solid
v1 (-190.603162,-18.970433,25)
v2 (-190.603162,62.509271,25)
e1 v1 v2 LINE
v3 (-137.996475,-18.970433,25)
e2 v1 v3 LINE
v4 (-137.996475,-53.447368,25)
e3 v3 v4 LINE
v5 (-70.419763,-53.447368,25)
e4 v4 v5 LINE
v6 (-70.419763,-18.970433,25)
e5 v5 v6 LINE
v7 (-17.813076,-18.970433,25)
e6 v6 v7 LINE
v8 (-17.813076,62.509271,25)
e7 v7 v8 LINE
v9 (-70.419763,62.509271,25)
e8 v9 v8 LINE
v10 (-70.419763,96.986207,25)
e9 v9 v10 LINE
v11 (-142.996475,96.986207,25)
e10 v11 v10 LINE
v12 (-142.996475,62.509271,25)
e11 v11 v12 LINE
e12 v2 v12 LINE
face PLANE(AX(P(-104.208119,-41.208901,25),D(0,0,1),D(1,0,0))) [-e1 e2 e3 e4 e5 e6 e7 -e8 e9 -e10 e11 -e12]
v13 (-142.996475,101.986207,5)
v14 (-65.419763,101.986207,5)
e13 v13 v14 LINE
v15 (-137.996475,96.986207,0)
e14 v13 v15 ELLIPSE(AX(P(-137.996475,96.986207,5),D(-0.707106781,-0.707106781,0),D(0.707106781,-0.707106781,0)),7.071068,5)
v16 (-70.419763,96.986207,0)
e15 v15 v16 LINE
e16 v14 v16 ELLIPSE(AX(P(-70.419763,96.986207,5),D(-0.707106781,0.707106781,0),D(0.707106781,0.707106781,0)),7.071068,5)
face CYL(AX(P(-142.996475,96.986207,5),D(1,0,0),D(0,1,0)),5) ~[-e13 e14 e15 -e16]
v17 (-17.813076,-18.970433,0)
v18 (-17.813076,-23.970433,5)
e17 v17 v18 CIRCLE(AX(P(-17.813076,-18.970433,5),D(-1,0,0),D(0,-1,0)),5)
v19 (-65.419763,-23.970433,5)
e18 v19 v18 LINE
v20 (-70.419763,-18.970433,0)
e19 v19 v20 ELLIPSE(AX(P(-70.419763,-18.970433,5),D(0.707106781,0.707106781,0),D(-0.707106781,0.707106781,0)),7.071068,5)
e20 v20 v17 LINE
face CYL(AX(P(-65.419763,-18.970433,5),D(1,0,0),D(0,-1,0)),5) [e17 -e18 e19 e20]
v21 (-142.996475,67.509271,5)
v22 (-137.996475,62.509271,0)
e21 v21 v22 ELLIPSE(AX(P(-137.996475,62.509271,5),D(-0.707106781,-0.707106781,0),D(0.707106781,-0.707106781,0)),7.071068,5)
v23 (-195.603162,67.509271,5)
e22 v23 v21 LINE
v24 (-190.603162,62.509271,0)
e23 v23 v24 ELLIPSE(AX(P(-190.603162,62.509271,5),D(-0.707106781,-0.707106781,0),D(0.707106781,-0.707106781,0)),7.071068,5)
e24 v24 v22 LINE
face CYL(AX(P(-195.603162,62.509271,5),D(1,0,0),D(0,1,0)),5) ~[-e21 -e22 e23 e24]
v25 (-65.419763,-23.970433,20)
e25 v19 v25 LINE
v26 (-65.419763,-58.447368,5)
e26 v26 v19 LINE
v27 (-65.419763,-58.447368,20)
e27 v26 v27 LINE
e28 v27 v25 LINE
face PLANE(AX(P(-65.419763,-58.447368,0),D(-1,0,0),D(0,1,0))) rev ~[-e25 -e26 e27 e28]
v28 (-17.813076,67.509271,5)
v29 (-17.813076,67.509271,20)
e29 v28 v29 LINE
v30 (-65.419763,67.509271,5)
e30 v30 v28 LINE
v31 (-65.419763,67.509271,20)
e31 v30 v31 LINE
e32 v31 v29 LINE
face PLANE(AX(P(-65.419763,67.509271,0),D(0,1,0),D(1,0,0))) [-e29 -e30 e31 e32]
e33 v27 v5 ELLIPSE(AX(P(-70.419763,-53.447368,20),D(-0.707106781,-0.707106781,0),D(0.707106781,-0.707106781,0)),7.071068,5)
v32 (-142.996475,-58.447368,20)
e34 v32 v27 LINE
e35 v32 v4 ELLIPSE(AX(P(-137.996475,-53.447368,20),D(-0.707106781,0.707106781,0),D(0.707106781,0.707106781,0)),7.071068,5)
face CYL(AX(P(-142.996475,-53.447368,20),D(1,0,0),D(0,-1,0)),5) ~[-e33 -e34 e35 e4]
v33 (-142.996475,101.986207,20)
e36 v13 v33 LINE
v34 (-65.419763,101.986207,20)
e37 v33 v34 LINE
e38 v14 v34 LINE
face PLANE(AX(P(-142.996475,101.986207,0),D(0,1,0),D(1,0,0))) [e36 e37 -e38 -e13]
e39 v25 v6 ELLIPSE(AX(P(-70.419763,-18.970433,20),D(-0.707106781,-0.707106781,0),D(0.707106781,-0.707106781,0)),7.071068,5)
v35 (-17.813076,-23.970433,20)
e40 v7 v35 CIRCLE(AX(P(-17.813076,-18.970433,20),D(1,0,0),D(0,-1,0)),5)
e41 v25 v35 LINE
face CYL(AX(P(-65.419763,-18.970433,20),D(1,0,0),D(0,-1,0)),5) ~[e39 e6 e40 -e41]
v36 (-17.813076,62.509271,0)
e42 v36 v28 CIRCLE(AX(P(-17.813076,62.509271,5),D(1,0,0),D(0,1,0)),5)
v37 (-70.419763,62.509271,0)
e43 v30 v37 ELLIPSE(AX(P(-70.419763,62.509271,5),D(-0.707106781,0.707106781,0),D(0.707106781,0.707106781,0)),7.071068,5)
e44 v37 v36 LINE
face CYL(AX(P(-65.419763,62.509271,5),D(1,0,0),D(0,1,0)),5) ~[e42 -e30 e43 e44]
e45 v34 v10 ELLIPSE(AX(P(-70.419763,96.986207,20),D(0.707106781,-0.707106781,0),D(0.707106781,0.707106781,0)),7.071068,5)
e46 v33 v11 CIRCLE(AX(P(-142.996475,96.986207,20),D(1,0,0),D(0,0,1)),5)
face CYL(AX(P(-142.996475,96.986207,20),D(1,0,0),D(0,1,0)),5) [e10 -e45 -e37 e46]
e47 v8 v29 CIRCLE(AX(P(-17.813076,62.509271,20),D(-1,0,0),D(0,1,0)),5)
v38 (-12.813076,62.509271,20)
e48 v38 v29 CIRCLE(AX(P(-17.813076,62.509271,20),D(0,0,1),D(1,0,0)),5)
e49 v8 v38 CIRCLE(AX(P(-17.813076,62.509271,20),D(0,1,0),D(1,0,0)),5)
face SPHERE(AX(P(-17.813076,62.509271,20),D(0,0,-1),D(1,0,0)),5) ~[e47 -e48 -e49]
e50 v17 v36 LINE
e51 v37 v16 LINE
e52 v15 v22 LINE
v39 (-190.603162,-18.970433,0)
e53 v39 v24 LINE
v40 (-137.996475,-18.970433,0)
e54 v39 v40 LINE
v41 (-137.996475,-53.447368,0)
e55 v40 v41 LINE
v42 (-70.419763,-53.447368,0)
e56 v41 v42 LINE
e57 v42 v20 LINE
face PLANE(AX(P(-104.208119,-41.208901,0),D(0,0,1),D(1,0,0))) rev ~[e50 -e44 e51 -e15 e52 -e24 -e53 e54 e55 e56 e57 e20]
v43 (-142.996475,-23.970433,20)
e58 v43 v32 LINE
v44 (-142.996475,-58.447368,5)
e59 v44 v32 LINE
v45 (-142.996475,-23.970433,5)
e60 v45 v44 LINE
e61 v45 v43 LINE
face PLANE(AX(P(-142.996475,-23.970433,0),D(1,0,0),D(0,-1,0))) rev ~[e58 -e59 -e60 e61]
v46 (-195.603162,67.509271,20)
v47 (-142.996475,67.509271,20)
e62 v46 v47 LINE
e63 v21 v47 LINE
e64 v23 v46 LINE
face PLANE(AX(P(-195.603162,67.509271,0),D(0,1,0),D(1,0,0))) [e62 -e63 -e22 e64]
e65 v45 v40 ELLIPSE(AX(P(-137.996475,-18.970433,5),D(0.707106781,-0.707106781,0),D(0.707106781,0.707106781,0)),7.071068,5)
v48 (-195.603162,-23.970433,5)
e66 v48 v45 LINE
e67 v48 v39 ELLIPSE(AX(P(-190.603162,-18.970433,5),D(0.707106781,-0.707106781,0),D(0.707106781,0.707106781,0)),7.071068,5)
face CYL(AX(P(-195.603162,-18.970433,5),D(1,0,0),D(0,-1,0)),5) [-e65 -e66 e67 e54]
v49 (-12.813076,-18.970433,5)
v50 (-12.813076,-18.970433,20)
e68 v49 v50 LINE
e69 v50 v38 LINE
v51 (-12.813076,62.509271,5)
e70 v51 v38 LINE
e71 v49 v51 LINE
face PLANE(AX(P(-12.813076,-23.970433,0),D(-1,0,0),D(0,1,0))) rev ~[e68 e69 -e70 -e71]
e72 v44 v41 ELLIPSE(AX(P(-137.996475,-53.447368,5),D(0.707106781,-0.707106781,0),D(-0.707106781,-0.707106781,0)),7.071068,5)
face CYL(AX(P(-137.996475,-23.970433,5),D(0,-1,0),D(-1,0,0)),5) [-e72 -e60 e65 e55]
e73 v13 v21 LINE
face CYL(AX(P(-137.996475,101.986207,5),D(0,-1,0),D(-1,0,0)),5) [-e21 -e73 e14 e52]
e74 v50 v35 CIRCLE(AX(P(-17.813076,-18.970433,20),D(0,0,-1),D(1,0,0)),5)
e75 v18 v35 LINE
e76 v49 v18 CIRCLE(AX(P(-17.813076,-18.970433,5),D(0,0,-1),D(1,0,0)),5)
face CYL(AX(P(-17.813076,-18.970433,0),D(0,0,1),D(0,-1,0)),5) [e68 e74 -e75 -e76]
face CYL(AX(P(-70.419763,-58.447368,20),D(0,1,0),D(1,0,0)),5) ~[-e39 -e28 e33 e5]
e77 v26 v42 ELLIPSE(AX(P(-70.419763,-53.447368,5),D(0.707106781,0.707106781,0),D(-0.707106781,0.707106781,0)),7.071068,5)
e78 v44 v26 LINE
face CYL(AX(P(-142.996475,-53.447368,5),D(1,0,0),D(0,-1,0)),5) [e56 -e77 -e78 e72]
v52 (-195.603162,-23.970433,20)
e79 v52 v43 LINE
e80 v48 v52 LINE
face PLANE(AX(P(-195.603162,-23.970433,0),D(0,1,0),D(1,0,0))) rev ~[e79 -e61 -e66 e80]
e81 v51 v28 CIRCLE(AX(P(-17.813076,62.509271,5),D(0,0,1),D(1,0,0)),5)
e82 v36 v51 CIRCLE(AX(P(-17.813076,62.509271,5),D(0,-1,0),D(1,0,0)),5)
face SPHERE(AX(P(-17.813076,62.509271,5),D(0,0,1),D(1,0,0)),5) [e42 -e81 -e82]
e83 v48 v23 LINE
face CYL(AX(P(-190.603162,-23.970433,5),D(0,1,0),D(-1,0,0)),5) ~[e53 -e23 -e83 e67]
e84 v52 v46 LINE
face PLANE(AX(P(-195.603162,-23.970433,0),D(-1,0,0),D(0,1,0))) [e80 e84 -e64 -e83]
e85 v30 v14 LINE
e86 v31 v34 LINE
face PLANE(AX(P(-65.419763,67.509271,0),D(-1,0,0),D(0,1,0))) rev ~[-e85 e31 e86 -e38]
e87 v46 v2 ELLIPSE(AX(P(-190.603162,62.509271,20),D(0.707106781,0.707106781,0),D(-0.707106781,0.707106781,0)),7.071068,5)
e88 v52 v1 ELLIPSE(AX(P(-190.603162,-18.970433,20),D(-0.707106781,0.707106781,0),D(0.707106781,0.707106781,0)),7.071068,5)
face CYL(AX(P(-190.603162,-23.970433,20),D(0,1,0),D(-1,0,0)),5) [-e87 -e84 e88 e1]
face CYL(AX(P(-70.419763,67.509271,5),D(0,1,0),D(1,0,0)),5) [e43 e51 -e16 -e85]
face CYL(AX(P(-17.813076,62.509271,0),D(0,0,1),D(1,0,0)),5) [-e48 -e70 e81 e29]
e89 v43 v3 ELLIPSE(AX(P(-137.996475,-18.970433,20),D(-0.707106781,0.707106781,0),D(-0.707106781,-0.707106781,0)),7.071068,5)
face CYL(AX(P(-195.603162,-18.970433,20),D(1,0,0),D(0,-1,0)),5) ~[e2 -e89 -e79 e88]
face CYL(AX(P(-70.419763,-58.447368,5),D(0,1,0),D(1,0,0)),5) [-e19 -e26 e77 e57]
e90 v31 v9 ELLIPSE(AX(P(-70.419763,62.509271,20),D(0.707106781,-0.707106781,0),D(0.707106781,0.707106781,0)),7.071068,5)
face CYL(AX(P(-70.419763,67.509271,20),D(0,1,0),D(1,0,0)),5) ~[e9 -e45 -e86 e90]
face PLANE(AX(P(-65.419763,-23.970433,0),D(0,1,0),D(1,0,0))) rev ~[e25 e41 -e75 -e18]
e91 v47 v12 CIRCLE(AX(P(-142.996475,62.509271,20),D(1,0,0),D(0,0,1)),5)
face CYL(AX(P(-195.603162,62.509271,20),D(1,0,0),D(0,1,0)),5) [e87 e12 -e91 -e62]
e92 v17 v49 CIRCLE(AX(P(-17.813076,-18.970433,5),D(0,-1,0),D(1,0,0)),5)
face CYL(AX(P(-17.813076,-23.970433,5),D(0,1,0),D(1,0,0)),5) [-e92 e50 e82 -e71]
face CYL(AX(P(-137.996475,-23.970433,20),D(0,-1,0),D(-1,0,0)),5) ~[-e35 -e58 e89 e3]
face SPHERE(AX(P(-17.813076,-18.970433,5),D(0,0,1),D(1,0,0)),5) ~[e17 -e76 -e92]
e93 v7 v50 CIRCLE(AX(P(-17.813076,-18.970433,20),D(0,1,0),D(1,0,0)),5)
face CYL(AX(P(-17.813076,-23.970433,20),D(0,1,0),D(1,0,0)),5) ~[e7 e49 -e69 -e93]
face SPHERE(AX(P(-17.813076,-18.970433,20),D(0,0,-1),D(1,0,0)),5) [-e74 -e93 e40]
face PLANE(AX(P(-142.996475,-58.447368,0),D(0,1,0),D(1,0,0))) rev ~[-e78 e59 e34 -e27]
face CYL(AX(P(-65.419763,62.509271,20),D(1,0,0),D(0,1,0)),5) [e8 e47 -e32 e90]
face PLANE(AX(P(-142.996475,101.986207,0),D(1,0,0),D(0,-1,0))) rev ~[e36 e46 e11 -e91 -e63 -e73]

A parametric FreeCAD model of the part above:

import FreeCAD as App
import Part
import Sketcher
from FreeCAD import Vector


def edges_at(feature, points):
    """Names of the edges that pass closest to the given points."""
    edges = feature.Shape.Edges
    near = lambda p: min(range(len(edges)), key=lambda i: edges[i].distToShape(Part.Vertex(*p))[0])
    return sorted({f"Edge{near(p) + 1}" for p in points})

doc = App.newDocument("Part")
body = doc.addObject("PartDesign::Body", "Body")

# Sketch on XY plane
sketch1 = body.newObject("Sketcher::SketchObject", "Sketch")
sketch1.AttachmentSupport = (doc.getObject("XY_Plane"), [""])
sketch1.MapMode = "FlatFace"
sketch1.addGeometry(Part.LineSegment(Vector(-142.996475, -58.447368, 0), Vector(-65.419763, -58.447368, 0)), False)
sketch1.addGeometry(Part.LineSegment(Vector(-65.419763, -58.447368, 0), Vector(-65.419763, -23.970433, 0)), False)
sketch1.addGeometry(Part.LineSegment(Vector(-65.419763, -23.970433, 0), Vector(-12.813076, -23.970433, 0)), False)
sketch1.addGeometry(Part.LineSegment(Vector(-12.813076, -23.970433, 0), Vector(-12.813076, 67.509271, 0)), False)
sketch1.addGeometry(Part.LineSegment(Vector(-12.813076, 67.509271, 0), Vector(-65.419763, 67.509271, 0)), False)
sketch1.addGeometry(Part.LineSegment(Vector(-65.419763, 67.509271, 0), Vector(-65.419763, 101.986207, 0)), False)
sketch1.addGeometry(Part.LineSegment(Vector(-65.419763, 101.986207, 0), Vector(-142.996475, 101.986207, 0)), False)
sketch1.addGeometry(Part.LineSegment(Vector(-142.996475, 101.986207, 0), Vector(-142.996475, 67.509271, 0)), False)
sketch1.addGeometry(Part.LineSegment(Vector(-142.996475, 67.509271, 0), Vector(-195.603162, 67.509271, 0)), False)
sketch1.addGeometry(Part.LineSegment(Vector(-195.603162, 67.509271, 0), Vector(-195.603162, -23.970433, 0)), False)
sketch1.addGeometry(Part.LineSegment(Vector(-195.603162, -23.970433, 0), Vector(-142.996475, -23.970433, 0)), False)
sketch1.addGeometry(Part.LineSegment(Vector(-142.996475, -23.970433, 0), Vector(-142.996475, -58.447368, 0)), False)
sketch1.addConstraint(Sketcher.Constraint("Coincident", 0, 2, 1, 1))
sketch1.addConstraint(Sketcher.Constraint("Coincident", 1, 2, 2, 1))
sketch1.addConstraint(Sketcher.Constraint("Coincident", 2, 2, 3, 1))
sketch1.addConstraint(Sketcher.Constraint("Coincident", 3, 2, 4, 1))
sketch1.addConstraint(Sketcher.Constraint("Coincident", 4, 2, 5, 1))
sketch1.addConstraint(Sketcher.Constraint("Coincident", 5, 2, 6, 1))
sketch1.addConstraint(Sketcher.Constraint("Coincident", 6, 2, 7, 1))
sketch1.addConstraint(Sketcher.Constraint("Coincident", 7, 2, 8, 1))
sketch1.addConstraint(Sketcher.Constraint("Coincident", 8, 2, 9, 1))
sketch1.addConstraint(Sketcher.Constraint("Coincident", 9, 2, 10, 1))
sketch1.addConstraint(Sketcher.Constraint("Coincident", 10, 2, 11, 1))
sketch1.addConstraint(Sketcher.Constraint("Coincident", 11, 2, 0, 1))
sketch1.addConstraint(Sketcher.Constraint("Horizontal", 0))
sketch1.addConstraint(Sketcher.Constraint("Vertical", 1))
sketch1.addConstraint(Sketcher.Constraint("Horizontal", 2))
sketch1.addConstraint(Sketcher.Constraint("Vertical", 3))
sketch1.addConstraint(Sketcher.Constraint("Horizontal", 4))
sketch1.addConstraint(Sketcher.Constraint("Vertical", 5))
sketch1.addConstraint(Sketcher.Constraint("Horizontal", 6))
sketch1.addConstraint(Sketcher.Constraint("Vertical", 7))
sketch1.addConstraint(Sketcher.Constraint("Horizontal", 8))
sketch1.addConstraint(Sketcher.Constraint("Vertical", 9))
sketch1.addConstraint(Sketcher.Constraint("Horizontal", 10))
sketch1.addConstraint(Sketcher.Constraint("Vertical", 11))
sketch1.addConstraint(Sketcher.Constraint("Horizontal", 4, 2, 7, 2))
sketch1.addConstraint(Sketcher.Constraint("Horizontal", 2, 2, 9, 2))
sketch1.addConstraint(Sketcher.Constraint("Vertical", 1, 2, 4, 2))
sketch1.addConstraint(Sketcher.Constraint("Vertical", 7, 2, 10, 2))
sketch1.addConstraint(Sketcher.Constraint("Equal", 4, 8))
sketch1.addConstraint(Sketcher.Constraint("Equal", 1, 5))
sketch1.addConstraint(Sketcher.Constraint("DistanceX", 0, 1, 0, 2, 77.576712))
sketch1.addConstraint(Sketcher.Constraint("DistanceX", 6, 2, 3, 2, 130.183399))
sketch1.addConstraint(Sketcher.Constraint("DistanceY", 1, 1, 1, 2, 34.476936))
sketch1.addConstraint(Sketcher.Constraint("DistanceY", 3, 1, 3, 2, 91.479704))
sketch1.addConstraint(Sketcher.Constraint("DistanceY", 0, 2, -1, 1, 58.447368))
sketch1.addConstraint(Sketcher.Constraint("DistanceX", 0, 2, -1, 1, 65.419763))
pad1 = body.newObject("PartDesign::Pad", "Pad")
pad1.Profile = sketch1
pad1.Length = 25
doc.recompute()

fillet = body.newObject("PartDesign::Fillet", "Fillet")
fillet.Base = (pad1, edges_at(pad1, [
    (-12.813, -23.97, 12.5),
    (-12.813, 67.509, 12.5),
    (-12.813, 21.769, 0),
    (-12.813, 21.769, 25),
    (-65.42, -41.209, 0),
    (-39.116, -23.97, 0),
    (-39.116, 67.509, 0),
    (-65.42, 84.748, 0),
    (-104.208, 101.986, 0),
    (-142.996, 84.748, 0),
    (-169.3, 67.509, 0),
    (-195.603, 21.769, 0),
    (-169.3, -23.97, 0),
    (-142.996, -41.209, 0),
    (-104.208, -58.447, 0),
    (-104.208, -58.447, 25),
    (-142.996, -41.209, 25),
    (-169.3, -23.97, 25),
    (-195.603, 21.769, 25),
    (-169.3, 67.509, 25),
    (-104.208, 101.986, 25),
    (-65.42, 84.748, 25),
    (-39.116, 67.509, 25),
    (-39.116, -23.97, 25),
    (-65.42, -41.209, 25),
]))
fillet.Radius = 5

doc.recompute()
